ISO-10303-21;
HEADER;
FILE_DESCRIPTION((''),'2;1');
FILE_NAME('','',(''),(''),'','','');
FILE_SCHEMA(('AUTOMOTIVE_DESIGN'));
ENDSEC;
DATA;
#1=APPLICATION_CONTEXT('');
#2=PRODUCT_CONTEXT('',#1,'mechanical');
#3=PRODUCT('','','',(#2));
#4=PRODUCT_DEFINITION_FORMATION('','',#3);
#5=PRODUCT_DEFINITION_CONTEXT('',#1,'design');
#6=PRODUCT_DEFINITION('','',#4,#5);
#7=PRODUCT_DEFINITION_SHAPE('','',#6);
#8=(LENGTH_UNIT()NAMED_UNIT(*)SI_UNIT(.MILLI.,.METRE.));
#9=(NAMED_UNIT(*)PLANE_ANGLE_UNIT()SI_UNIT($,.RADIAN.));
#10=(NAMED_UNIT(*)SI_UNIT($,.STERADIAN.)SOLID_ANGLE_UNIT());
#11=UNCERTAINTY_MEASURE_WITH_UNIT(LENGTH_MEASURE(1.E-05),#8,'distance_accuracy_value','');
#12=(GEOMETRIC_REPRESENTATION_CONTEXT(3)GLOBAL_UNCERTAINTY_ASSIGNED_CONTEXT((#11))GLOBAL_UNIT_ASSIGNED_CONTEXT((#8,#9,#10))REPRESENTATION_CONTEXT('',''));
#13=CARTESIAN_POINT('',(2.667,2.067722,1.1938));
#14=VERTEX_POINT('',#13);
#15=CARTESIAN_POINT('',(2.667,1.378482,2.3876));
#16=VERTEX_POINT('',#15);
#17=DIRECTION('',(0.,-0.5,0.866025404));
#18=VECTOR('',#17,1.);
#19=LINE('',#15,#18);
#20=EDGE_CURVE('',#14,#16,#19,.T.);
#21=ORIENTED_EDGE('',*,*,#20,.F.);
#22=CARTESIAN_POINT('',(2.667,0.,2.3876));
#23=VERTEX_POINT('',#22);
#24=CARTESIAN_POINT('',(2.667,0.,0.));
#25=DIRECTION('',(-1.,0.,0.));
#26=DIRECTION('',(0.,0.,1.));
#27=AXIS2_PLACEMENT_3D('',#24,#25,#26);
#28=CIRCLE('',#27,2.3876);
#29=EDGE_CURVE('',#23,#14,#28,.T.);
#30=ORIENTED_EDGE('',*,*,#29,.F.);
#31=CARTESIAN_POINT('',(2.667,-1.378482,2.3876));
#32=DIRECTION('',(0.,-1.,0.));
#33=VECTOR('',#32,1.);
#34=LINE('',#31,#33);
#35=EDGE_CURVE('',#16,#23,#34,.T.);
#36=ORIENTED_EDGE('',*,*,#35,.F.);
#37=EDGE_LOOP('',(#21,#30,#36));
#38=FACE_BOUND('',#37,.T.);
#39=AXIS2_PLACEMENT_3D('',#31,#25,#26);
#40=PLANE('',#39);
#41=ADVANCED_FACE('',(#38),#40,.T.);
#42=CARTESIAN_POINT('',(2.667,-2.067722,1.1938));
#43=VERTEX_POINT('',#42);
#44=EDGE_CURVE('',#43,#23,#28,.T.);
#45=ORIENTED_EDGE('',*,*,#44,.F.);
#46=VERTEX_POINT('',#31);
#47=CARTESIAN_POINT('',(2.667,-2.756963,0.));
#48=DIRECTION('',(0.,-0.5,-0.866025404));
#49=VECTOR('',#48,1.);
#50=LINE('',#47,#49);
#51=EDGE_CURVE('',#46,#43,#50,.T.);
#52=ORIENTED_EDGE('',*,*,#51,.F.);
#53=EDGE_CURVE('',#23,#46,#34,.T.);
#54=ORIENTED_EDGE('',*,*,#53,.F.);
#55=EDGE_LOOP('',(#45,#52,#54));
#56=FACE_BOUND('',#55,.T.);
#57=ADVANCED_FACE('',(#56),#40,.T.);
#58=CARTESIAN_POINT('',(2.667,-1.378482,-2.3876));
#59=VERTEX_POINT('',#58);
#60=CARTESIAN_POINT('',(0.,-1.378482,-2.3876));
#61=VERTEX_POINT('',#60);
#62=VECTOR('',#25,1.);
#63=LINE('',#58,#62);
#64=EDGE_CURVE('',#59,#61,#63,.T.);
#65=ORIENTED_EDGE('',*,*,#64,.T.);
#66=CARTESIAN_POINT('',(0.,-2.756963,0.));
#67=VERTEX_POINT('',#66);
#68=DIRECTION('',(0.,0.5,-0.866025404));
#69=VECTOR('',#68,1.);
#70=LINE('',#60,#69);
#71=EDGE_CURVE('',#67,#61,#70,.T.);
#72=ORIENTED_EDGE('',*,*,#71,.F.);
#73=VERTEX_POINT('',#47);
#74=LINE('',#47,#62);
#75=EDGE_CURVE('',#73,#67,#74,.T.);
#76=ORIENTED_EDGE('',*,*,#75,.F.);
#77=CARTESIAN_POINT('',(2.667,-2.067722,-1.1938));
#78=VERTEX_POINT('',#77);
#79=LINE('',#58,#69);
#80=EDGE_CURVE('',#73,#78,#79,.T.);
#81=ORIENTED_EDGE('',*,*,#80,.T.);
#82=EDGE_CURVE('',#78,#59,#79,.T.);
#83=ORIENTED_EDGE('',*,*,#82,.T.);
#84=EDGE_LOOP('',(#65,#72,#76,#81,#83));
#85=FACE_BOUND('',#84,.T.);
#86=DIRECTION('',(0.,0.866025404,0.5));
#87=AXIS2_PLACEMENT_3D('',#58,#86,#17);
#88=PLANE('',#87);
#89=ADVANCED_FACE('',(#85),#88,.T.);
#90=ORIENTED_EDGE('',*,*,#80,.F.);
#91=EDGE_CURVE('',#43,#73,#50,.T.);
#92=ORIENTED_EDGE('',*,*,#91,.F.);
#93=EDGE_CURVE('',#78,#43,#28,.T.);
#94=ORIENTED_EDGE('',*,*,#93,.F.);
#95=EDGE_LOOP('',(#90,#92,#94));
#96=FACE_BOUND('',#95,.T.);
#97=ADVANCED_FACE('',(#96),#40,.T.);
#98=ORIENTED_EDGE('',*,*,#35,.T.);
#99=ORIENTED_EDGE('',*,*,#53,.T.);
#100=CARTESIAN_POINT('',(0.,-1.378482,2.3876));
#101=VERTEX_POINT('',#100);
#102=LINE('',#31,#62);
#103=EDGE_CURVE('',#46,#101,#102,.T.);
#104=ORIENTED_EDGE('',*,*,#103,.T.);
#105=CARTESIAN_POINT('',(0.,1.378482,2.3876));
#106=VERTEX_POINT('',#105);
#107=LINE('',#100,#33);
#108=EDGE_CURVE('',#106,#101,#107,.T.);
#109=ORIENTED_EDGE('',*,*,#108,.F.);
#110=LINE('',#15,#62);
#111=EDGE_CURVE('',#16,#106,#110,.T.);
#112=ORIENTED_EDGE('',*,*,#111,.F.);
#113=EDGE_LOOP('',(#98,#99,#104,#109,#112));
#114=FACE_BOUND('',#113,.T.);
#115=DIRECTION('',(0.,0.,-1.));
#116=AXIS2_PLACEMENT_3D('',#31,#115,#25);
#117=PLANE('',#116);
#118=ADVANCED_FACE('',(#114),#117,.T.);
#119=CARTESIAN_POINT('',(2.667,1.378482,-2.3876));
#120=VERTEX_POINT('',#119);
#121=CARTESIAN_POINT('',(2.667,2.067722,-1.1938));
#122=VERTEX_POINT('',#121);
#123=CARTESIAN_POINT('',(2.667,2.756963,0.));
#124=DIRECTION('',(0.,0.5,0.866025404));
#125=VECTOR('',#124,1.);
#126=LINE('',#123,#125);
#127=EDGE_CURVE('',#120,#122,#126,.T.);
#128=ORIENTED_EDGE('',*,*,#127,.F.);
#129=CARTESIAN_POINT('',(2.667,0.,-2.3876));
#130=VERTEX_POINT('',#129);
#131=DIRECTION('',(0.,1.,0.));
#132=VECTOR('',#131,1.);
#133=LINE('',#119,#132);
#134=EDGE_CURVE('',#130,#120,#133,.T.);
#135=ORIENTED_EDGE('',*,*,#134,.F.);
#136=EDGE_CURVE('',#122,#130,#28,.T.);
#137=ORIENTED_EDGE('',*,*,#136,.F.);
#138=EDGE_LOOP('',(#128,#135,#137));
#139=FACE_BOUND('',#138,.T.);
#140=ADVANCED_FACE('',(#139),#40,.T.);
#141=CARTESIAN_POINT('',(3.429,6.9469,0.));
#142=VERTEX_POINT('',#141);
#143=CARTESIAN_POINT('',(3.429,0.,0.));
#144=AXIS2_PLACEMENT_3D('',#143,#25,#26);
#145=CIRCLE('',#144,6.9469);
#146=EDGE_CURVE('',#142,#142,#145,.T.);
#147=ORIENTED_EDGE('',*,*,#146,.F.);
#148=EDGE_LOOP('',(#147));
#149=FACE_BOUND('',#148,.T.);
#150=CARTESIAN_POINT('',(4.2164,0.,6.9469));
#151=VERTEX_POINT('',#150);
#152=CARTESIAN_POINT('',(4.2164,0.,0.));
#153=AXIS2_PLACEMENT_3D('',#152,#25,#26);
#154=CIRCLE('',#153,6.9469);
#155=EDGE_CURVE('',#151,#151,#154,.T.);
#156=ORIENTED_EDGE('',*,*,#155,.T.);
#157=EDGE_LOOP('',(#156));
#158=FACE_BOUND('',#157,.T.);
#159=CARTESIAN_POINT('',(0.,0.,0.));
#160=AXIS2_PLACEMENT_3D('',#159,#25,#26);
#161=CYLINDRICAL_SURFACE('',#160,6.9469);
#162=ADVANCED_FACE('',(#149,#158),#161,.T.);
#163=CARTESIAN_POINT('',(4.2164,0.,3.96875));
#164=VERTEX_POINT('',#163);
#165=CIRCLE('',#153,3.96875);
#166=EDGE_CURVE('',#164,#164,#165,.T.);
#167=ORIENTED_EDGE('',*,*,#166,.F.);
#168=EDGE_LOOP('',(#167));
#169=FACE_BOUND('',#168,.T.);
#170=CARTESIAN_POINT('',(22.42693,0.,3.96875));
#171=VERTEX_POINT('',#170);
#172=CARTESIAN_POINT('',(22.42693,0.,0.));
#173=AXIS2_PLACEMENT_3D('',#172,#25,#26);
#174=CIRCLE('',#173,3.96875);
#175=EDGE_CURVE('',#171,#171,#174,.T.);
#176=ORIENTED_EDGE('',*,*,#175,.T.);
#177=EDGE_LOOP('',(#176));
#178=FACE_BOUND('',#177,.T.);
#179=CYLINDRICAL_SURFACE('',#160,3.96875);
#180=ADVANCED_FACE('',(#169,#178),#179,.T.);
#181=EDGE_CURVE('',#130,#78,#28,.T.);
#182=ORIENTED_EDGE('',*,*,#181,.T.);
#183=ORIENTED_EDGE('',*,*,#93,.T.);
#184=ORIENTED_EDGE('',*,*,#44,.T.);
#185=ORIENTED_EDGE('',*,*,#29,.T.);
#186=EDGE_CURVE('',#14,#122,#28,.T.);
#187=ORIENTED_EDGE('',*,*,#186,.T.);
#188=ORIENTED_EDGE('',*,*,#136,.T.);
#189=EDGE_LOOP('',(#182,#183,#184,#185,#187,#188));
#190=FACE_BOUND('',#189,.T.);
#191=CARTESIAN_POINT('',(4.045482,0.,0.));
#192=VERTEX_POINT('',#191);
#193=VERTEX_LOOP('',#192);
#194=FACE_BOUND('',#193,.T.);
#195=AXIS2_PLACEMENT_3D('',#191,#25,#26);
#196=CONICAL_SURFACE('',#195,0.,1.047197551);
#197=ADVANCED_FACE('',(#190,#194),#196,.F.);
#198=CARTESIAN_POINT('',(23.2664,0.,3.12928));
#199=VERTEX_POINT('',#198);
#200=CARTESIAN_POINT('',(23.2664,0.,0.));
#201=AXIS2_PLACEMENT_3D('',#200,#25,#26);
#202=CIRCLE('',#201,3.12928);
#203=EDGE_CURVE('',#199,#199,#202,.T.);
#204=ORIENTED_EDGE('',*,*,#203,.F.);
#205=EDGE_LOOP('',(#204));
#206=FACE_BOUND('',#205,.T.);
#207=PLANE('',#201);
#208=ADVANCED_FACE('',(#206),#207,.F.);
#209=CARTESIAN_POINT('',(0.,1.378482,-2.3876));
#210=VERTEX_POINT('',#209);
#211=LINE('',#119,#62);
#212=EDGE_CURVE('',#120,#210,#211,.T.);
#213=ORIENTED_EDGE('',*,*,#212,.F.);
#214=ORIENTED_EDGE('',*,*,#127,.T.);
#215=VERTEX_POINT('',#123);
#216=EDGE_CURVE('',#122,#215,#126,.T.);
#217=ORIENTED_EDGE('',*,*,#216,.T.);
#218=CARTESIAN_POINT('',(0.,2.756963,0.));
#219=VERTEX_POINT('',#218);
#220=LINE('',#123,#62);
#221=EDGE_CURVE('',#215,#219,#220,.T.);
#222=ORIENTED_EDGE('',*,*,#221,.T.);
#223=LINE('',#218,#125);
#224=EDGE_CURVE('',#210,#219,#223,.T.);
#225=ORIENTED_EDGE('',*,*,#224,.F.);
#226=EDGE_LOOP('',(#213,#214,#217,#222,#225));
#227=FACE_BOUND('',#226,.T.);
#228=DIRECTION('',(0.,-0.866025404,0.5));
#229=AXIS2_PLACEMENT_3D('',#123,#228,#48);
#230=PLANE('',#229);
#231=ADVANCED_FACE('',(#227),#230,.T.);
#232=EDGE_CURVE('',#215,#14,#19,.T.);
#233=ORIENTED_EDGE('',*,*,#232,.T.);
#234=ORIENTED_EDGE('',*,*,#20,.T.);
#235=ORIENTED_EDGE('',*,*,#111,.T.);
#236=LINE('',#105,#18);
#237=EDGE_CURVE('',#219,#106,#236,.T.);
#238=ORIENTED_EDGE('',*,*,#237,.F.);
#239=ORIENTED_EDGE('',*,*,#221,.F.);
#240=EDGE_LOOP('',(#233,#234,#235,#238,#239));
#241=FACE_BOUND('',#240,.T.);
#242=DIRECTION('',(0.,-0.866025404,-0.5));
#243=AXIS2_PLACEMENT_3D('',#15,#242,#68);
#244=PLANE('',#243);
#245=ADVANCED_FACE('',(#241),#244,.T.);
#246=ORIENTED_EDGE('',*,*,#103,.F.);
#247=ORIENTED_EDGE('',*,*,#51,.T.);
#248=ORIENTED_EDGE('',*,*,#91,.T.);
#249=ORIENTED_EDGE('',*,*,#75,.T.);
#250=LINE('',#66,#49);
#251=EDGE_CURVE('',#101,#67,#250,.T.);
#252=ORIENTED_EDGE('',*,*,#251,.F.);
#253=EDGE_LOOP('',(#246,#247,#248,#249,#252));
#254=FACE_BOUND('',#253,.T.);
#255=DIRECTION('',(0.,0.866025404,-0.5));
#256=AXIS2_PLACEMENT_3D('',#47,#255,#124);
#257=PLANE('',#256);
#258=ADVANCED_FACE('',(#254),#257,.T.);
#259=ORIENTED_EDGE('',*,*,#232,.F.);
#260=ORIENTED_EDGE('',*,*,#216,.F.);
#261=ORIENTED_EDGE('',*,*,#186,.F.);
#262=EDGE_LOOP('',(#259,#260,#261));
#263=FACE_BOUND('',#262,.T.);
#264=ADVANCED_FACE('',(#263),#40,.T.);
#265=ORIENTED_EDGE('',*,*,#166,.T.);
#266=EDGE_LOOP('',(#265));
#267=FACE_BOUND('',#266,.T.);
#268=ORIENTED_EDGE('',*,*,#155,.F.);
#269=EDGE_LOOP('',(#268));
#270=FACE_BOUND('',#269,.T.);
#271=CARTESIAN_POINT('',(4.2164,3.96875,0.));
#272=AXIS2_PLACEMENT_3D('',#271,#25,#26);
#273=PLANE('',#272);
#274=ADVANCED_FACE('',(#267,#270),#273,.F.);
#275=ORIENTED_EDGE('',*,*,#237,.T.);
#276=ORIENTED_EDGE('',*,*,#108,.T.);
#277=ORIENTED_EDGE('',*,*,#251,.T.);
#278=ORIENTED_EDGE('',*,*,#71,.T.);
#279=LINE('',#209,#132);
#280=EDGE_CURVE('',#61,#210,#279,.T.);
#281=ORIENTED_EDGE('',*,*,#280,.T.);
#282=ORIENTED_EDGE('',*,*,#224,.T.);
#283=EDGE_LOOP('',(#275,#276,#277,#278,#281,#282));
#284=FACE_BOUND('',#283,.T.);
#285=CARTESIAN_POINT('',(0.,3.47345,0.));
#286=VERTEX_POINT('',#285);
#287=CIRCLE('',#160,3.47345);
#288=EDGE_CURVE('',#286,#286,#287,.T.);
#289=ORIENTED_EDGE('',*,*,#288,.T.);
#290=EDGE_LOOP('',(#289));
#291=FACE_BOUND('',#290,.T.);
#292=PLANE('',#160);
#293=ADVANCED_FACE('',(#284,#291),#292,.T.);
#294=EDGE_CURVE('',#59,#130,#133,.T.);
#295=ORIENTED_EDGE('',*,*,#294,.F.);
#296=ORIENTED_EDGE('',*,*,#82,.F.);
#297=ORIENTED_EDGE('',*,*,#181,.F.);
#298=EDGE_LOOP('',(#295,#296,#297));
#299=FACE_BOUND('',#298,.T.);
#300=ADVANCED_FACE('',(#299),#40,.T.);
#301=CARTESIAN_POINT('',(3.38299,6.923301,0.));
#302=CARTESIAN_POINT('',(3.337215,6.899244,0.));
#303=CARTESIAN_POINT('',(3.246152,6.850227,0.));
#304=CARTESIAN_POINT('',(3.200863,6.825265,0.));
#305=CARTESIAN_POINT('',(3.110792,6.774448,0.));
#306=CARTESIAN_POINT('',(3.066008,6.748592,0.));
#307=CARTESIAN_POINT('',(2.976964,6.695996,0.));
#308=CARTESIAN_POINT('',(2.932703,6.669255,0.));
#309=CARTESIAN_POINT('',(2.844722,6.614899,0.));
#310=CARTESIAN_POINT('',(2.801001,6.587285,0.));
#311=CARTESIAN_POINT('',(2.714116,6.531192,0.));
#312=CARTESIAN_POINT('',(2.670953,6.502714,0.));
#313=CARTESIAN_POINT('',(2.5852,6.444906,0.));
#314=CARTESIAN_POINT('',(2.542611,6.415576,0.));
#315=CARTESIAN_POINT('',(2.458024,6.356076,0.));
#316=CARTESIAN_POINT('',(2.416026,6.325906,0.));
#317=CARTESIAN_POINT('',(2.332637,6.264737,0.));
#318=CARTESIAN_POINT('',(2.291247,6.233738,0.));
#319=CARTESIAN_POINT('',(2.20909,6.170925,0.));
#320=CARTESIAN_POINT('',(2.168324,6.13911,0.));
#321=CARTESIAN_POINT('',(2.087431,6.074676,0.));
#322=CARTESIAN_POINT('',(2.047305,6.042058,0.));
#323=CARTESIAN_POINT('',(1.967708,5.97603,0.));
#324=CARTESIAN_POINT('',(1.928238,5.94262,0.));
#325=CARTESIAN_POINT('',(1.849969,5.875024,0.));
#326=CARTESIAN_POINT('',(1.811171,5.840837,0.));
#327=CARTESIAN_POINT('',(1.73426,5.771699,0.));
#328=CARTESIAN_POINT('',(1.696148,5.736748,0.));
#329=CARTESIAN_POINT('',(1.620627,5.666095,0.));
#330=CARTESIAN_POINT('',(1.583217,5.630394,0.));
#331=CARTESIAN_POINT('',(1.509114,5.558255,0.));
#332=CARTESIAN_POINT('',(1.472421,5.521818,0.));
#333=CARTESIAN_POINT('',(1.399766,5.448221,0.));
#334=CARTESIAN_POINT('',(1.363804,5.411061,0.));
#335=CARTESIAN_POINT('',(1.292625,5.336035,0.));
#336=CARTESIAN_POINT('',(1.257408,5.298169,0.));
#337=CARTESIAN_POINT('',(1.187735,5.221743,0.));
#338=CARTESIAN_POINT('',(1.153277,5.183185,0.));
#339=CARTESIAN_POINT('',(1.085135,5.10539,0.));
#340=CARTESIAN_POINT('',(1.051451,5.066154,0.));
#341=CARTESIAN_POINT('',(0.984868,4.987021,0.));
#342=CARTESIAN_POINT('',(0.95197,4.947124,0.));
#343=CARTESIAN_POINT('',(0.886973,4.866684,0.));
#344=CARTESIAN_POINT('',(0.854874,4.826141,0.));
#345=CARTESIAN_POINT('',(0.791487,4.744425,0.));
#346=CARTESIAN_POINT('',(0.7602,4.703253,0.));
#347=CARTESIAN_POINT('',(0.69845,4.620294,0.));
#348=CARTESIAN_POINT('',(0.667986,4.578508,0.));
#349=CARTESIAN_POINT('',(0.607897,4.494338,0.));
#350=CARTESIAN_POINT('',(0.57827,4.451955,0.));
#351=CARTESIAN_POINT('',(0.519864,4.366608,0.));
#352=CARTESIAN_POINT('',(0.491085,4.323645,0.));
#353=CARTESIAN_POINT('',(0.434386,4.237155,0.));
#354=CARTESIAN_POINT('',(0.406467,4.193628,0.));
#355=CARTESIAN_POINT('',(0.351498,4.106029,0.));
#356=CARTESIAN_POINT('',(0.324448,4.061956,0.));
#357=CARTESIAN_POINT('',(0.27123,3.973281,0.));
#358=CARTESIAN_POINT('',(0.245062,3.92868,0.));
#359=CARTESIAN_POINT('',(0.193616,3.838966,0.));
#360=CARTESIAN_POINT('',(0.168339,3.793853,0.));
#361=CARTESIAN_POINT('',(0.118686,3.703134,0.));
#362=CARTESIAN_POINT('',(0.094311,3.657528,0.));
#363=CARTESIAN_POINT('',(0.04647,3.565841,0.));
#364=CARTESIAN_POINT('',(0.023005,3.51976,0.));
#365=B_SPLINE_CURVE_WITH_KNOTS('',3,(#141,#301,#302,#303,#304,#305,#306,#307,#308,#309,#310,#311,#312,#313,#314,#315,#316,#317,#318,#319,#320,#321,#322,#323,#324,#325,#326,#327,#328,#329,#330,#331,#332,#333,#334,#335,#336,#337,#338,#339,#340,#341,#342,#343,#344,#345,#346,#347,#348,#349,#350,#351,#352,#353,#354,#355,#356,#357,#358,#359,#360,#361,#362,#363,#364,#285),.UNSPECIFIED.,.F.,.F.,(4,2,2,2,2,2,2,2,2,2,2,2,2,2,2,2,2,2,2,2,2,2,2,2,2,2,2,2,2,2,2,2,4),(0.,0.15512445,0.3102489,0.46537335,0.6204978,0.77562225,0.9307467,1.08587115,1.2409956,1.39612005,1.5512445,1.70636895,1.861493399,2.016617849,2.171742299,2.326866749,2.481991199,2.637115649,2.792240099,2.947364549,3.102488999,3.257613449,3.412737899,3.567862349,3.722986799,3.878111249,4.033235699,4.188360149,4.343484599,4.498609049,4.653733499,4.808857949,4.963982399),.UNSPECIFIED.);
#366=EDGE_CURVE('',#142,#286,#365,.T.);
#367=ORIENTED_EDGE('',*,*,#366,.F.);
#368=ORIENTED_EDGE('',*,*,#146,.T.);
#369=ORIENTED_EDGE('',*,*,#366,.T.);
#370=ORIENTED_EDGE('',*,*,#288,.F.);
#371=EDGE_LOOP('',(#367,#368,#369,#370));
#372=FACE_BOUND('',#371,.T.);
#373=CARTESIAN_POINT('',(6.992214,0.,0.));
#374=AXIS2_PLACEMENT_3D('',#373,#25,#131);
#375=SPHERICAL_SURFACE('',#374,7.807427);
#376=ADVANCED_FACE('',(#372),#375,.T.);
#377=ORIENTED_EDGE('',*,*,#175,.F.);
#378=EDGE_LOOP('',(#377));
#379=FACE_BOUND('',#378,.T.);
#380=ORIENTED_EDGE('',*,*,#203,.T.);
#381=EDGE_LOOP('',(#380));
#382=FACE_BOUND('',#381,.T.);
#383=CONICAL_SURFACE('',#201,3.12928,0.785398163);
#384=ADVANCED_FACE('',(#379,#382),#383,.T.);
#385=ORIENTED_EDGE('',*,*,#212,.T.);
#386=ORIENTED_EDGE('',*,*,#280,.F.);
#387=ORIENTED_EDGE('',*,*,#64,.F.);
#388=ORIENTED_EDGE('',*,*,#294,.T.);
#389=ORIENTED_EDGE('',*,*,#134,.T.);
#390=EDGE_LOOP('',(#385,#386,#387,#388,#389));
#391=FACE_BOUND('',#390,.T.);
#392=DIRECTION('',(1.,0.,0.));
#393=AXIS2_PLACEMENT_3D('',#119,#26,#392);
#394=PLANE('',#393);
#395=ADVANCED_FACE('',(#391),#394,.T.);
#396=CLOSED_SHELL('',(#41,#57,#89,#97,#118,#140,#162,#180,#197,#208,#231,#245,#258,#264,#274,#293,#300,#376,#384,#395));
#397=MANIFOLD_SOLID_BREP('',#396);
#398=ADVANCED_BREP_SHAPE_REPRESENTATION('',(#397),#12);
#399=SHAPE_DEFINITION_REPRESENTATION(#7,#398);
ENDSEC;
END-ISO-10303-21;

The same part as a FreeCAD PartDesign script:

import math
import FreeCAD as App
import Part
import Sketcher
from FreeCAD import Vector
Q = App.Units.Quantity


def add_polygon(sketch, points):
    """Adds a closed chain of lines whose ends are joined by coincident constraints."""
    first, n = sketch.GeometryCount, len(points)
    for a, b in zip(points, points[1:] + points[:1]):
        sketch.addGeometry(Part.LineSegment(App.Vector(*a, 0), App.Vector(*b, 0)), False)
    for i in range(n):
        sketch.addConstraint(Sketcher.Constraint("Coincident", first + i, 2, first + (i + 1) % n, 1))

doc = App.newDocument("Part")
body = doc.addObject("PartDesign::Body", "Body")

sketch1 = body.newObject("Sketcher::SketchObject", "Sketch")
sketch1.AttachmentSupport = (doc.getObject("XY_Plane"), [""])
sketch1.MapMode = "FlatFace"
sketch1.addGeometry(Part.LineSegment(Vector(23.2664, 0, 0), Vector(23.2664, 3.12928, 0)), False)
sketch1.addGeometry(Part.LineSegment(Vector(23.2664, 3.12928, 0), Vector(22.42693, 3.96875, 0)), False)
sketch1.addGeometry(Part.LineSegment(Vector(22.42693, 3.96875, 0), Vector(4.2164, 3.96875, 0)), False)
sketch1.addGeometry(Part.LineSegment(Vector(4.2164, 3.96875, 0), Vector(4.2164, 6.9469, 0)), False)
sketch1.addGeometry(Part.LineSegment(Vector(4.2164, 6.9469, 0), Vector(3.429, 6.9469, 0)), False)
sketch1.addGeometry(Part.ArcOfCircle(Part.Circle(Vector(6.992214, 0, 0), Vector(0, 0, 1), 7.807427), math.radians(117.154262), math.radians(153.583668)), False)
sketch1.addGeometry(Part.LineSegment(Vector(0, 3.47345, 0), Vector(0, 0, 0)), False)
sketch1.addGeometry(Part.LineSegment(Vector(0, 0, 0), Vector(23.2664, 0, 0)), False)
sketch1.addConstraint(Sketcher.Constraint("Coincident", 0, 2, 1, 1))
sketch1.addConstraint(Sketcher.Constraint("Coincident", 1, 2, 2, 1))
sketch1.addConstraint(Sketcher.Constraint("Coincident", 2, 2, 3, 1))
sketch1.addConstraint(Sketcher.Constraint("Coincident", 3, 2, 4, 1))
sketch1.addConstraint(Sketcher.Constraint("Coincident", 4, 2, 5, 1))
sketch1.addConstraint(Sketcher.Constraint("Coincident", 5, 2, 6, 1))
sketch1.addConstraint(Sketcher.Constraint("Coincident", 6, 2, 7, 1))
sketch1.addConstraint(Sketcher.Constraint("Coincident", 7, 2, 0, 1))
sketch1.addConstraint(Sketcher.Constraint("Vertical", 0))
sketch1.addConstraint(Sketcher.Constraint("Horizontal", 2))
sketch1.addConstraint(Sketcher.Constraint("Vertical", 3))
sketch1.addConstraint(Sketcher.Constraint("Horizontal", 4))
sketch1.addConstraint(Sketcher.Constraint("Vertical", 6))
sketch1.addConstraint(Sketcher.Constraint("Horizontal", 7))
sketch1.addConstraint(Sketcher.Constraint("Coincident", 6, 2, -1, 1))
sketch1.addConstraint(Sketcher.Constraint("PointOnObject", 5, 3, -1))
sketch1.addConstraint(Sketcher.Constraint("Angle", 1, Q("135 deg")))
sketch1.addConstraint(Sketcher.Constraint("DistanceX", 4, 2, 4, 1, Q("0.031 in")))
sketch1.addConstraint(Sketcher.Constraint("DistanceX", 7, 1, 7, 2, Q("0.916 in")))
sketch1.addConstraint(Sketcher.Constraint("DistanceX", 2, 2, 0, 2, Q("0.75 in")))
sketch1.addConstraint(Sketcher.Constraint("DistanceY", 0, 1, 0, 2, Q("0.1232 in")))
sketch1.addConstraint(Sketcher.Constraint("DistanceY", -1, 1, 1, 2, Q("0.15625 in")))
sketch1.addConstraint(Sketcher.Constraint("DistanceY", -1, 1, 3, 2, Q("0.2735 in")))
sketch1.addConstraint(Sketcher.Constraint("Radius", 5, Q("7.807427 mm")))
revolution = body.newObject("PartDesign::Revolution", "Revolution")
revolution.Profile = sketch1
revolution.ReferenceAxis = (sketch1, ["H_Axis"])
revolution.Angle = 360

sketch2 = body.newObject("Sketcher::SketchObject", "Sketch001")
sketch2.AttachmentSupport = (doc.getObject("XY_Plane"), [""])
sketch2.MapMode = "FlatFace"
add_polygon(sketch2, [(2.667, 2.3876), (0, 2.3876), (0, 0), (4.045482, 0)])
sketch2.addConstraint(Sketcher.Constraint("Horizontal", 0))
sketch2.addConstraint(Sketcher.Constraint("Vertical", 1))
sketch2.addConstraint(Sketcher.Constraint("Horizontal", 2))
sketch2.addConstraint(Sketcher.Constraint("Coincident", 1, 2, -1, 1))
sketch2.addConstraint(Sketcher.Constraint("Angle", 3, Q("120 deg")))
sketch2.addConstraint(Sketcher.Constraint("DistanceX", 0, 2, 0, 1, Q("0.105 in")))
sketch2.addConstraint(Sketcher.Constraint("DistanceY", 1, 2, 1, 1, Q("0.094 in")))
groove = body.newObject("PartDesign::Groove", "Groove")
groove.Profile = sketch2
groove.ReferenceAxis = (sketch2, ["H_Axis"])
groove.Angle = 360

sketch3 = body.newObject("Sketcher::SketchObject", "Sketch002")
sketch3.AttachmentSupport = (doc.getObject("YZ_Plane"), [""])
sketch3.MapMode = "FlatFace"
add_polygon(sketch3, [(1.378482, 2.3876), (-1.378482, 2.3876), (-2.756963, 0), (-1.378482, -2.3876), (1.378482, -2.3876), (2.756963, 0)])
sketch3.addConstraint(Sketcher.Constraint("Horizontal", 0))
sketch3.addConstraint(Sketcher.Constraint("Horizontal", 3))
sketch3.addConstraint(Sketcher.Constraint("Symmetric", 0, 2, 3, 2, -1, 1))
sketch3.addConstraint(Sketcher.Constraint("Symmetric", 1, 2, 4, 2, -1, 1))
sketch3.addConstraint(Sketcher.Constraint("PointOnObject", 1, 2, -1))
sketch3.addConstraint(Sketcher.Constraint("Parallel", 2, 5))
sketch3.addConstraint(Sketcher.Constraint("Vertical", 0, 2, 2, 2))
sketch3.addConstraint(Sketcher.Constraint("Angle", 1, Q("-120 deg")))
sketch3.addConstraint(Sketcher.Constraint("DistanceY", -1, 1, 0, 2, Q("0.094 in")))
sketch3.addConstraint(Sketcher.Constraint("DistanceX", 0, 2, 0, 1, Q("2.756963 mm")))
pocket1 = body.newObject("PartDesign::Pocket", "Pocket")
pocket1.Profile = sketch3
pocket1.Length = Q("0.105 in")
pocket1.Reversed = True

doc.recompute()
